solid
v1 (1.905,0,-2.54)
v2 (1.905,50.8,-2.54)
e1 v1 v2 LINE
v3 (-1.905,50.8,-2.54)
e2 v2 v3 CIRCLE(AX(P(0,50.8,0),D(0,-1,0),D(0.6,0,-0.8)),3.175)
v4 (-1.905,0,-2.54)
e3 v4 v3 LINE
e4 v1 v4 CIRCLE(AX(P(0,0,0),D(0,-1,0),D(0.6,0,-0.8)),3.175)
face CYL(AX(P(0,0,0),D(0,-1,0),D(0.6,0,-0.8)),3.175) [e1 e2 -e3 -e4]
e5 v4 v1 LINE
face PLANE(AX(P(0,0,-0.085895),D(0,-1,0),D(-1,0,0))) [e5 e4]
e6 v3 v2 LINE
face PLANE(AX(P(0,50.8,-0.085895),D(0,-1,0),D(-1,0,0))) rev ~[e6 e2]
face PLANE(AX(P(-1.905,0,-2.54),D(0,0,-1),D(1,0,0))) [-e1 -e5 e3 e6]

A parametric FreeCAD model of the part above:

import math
import FreeCAD as App
import Part
import Sketcher
from FreeCAD import Vector
Q = App.Units.Quantity

doc = App.newDocument("Part")
body = doc.addObject("PartDesign::Body", "Body")

sketch1 = body.newObject("Sketcher::SketchObject", "Sketch")
sketch1.AttachmentSupport = (doc.getObject("XZ_Plane"), [""])
sketch1.MapMode = "FlatFace"
sketch1.addGeometry(Part.LineSegment(Vector(1.9, -2.5, 0), Vector(-1.9, -2.5, 0)), False)
sketch1.addGeometry(Part.ArcOfCircle(Part.Circle(Vector(0, 0, 0), Vector(0, 0, 1), 3.2), math.radians(-53), math.radians(233)), False)
sketch1.addConstraint(Sketcher.Constraint("Coincident", 0, 1, 1, 1))
sketch1.addConstraint(Sketcher.Constraint("Coincident", 1, 2, 0, 2))
sketch1.addConstraint(Sketcher.Constraint("Horizontal", 0))
sketch1.addConstraint(Sketcher.Constraint("Coincident", 1, 3, -1, 1))
sketch1.addConstraint(Sketcher.Constraint("Radius", 1, Q("0.125 in")))
sketch1.addConstraint(Sketcher.Constraint("DistanceX", 0, 2, 0, 1, Q("0.15 in")))
pad1 = body.newObject("PartDesign::Pad", "Pad")
pad1.Profile = sketch1
pad1.Length = Q("2 in")
pad1.Reversed = True

doc.recompute()
